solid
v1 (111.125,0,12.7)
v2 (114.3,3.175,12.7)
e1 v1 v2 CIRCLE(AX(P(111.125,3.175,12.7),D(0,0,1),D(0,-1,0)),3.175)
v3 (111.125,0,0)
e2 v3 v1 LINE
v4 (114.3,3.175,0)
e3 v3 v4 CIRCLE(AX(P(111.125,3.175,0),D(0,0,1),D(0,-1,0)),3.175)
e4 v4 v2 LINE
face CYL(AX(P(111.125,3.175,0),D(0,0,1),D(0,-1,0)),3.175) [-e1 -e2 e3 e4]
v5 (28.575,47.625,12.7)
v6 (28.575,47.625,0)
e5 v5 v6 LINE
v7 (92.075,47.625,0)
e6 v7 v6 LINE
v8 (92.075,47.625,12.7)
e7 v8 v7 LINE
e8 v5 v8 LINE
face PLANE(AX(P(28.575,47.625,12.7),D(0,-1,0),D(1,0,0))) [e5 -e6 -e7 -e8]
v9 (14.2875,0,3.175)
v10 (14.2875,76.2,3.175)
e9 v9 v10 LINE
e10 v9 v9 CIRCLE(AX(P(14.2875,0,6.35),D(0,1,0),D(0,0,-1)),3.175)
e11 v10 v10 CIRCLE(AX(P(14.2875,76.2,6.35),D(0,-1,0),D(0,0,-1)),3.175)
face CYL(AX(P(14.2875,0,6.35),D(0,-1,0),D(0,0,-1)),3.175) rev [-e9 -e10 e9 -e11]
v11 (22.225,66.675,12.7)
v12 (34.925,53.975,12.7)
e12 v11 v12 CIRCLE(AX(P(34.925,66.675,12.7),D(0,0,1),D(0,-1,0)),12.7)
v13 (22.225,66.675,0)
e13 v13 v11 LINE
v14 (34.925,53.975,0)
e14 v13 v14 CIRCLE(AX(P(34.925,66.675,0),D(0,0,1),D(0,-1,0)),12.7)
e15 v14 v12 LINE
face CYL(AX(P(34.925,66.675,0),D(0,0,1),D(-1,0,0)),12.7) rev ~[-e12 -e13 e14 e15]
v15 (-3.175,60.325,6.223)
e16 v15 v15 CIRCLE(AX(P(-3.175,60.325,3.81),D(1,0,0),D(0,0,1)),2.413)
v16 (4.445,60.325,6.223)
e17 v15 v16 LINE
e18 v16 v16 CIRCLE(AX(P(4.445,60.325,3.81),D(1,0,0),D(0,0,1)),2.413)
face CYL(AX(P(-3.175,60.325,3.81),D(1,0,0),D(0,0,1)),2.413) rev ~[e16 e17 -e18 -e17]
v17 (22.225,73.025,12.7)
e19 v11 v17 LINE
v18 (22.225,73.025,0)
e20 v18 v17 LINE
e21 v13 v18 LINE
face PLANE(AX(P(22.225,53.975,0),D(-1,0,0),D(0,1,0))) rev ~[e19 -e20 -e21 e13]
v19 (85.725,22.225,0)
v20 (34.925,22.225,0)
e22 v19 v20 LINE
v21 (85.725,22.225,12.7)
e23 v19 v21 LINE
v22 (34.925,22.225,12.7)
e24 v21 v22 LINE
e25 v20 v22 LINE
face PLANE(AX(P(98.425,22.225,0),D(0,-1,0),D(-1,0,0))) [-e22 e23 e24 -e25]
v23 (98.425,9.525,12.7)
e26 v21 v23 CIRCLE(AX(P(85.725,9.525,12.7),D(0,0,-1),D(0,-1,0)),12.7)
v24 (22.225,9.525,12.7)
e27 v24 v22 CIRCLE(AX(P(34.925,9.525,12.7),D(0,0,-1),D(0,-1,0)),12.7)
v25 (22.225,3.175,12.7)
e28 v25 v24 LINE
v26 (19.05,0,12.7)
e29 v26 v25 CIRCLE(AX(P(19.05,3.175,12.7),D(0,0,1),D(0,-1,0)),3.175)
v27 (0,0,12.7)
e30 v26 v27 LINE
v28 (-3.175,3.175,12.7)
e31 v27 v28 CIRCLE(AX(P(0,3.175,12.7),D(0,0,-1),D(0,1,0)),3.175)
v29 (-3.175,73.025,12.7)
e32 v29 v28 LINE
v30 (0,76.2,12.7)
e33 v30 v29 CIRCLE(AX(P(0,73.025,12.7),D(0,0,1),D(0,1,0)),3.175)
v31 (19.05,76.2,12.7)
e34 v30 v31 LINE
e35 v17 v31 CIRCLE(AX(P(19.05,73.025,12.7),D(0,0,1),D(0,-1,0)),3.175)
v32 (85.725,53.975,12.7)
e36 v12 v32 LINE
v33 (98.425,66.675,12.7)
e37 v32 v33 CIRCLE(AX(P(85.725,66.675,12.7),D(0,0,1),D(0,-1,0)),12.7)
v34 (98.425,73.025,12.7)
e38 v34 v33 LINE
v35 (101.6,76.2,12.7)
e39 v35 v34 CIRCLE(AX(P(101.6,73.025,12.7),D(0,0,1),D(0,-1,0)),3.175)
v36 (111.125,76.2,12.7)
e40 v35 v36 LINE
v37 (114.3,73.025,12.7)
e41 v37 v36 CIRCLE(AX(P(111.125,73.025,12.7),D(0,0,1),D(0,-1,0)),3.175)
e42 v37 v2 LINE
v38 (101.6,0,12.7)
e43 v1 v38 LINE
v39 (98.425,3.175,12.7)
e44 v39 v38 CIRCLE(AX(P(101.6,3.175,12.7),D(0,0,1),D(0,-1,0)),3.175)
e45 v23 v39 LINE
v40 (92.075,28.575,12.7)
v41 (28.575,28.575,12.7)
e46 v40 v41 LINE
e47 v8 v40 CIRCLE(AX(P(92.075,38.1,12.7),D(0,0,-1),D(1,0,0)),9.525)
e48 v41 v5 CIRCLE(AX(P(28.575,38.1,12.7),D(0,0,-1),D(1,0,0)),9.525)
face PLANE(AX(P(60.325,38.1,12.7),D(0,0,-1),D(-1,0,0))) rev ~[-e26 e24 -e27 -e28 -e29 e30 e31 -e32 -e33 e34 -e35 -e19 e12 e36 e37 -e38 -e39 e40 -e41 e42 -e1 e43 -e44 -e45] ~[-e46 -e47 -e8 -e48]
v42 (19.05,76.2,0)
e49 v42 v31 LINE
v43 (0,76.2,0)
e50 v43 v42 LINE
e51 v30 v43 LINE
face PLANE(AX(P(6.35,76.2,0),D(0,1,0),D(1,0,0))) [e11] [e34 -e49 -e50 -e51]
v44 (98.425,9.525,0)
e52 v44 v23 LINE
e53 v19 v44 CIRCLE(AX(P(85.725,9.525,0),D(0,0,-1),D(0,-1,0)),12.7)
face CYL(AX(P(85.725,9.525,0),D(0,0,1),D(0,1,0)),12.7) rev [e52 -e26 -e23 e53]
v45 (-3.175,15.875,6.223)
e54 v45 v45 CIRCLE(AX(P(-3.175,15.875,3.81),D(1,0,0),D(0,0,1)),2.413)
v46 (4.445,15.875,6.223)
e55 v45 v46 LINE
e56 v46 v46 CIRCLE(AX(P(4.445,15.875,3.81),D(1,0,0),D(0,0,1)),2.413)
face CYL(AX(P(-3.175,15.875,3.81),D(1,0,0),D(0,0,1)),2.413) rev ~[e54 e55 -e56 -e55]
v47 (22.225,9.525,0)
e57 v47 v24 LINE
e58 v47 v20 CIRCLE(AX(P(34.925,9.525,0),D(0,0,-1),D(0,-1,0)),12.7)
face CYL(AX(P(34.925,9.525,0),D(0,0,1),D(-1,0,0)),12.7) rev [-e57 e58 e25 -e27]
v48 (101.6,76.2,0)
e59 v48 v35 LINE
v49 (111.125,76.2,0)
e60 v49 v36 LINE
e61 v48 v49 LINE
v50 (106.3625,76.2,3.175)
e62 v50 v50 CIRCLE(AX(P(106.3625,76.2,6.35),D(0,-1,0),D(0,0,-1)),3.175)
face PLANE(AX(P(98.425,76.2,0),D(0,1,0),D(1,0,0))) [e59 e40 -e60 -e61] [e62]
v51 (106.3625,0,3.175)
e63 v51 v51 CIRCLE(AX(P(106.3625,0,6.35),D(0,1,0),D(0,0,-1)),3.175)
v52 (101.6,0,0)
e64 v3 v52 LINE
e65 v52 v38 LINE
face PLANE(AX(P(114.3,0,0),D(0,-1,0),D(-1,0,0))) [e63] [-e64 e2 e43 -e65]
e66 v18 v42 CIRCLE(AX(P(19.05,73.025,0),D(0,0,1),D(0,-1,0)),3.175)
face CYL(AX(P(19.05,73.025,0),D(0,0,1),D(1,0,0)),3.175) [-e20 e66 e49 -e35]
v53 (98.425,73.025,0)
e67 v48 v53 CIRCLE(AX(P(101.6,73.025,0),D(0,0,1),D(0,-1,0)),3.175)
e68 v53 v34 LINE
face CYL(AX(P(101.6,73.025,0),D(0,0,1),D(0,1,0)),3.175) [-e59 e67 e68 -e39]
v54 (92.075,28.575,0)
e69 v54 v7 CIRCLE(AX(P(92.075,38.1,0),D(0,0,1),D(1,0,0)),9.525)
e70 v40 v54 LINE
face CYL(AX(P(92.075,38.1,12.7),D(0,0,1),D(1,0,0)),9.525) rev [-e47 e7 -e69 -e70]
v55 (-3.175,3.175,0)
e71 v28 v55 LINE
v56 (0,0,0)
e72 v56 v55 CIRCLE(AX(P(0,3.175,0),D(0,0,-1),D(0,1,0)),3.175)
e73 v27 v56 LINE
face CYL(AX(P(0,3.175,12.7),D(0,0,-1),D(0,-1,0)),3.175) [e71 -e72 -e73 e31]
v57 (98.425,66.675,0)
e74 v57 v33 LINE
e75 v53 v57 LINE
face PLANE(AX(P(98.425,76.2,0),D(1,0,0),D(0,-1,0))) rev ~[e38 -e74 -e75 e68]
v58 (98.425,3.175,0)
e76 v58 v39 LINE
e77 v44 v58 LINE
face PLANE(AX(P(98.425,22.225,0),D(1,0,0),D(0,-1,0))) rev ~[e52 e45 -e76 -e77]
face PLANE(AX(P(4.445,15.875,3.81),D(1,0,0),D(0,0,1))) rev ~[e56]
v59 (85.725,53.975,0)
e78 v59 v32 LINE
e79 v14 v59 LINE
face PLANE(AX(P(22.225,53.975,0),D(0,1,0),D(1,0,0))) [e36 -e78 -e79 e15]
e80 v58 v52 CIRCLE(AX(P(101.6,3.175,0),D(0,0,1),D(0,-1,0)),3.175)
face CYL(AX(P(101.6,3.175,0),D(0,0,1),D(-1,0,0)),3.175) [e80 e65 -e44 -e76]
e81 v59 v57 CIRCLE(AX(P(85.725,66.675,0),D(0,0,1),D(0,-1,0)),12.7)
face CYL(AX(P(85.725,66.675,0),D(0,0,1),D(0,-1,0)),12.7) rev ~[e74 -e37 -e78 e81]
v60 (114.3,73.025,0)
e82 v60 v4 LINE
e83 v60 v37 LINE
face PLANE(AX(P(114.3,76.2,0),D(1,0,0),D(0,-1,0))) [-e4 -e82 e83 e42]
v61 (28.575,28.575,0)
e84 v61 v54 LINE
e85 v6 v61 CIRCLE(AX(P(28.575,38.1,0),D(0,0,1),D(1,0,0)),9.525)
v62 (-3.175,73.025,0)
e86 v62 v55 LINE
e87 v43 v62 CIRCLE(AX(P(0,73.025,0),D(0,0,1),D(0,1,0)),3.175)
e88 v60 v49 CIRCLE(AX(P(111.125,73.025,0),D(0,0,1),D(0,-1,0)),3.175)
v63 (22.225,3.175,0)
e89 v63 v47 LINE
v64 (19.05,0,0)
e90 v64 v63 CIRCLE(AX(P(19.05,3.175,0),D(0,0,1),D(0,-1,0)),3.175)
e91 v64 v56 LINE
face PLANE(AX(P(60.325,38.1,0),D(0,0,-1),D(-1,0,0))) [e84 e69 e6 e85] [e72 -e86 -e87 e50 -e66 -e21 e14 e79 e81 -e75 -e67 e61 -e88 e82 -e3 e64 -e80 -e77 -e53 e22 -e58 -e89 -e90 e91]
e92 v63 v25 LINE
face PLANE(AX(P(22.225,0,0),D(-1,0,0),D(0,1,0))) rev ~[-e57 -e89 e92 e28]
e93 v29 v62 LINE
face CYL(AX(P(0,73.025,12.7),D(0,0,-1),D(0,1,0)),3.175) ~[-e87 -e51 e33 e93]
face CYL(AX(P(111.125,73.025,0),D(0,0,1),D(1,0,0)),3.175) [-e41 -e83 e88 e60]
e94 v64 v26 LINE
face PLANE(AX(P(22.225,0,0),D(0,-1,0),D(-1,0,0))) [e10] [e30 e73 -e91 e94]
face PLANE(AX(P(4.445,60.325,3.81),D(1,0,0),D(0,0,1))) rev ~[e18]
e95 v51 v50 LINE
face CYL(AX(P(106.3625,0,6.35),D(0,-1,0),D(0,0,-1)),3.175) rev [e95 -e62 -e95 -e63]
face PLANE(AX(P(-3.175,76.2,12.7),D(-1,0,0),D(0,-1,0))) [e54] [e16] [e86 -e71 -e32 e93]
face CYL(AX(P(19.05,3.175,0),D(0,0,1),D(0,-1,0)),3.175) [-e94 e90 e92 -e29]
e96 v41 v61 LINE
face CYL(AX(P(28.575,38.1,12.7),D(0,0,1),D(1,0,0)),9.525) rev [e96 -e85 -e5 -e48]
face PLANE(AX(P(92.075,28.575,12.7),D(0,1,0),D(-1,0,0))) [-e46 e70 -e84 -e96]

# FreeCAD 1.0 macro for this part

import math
import FreeCAD as App
import Part
import Sketcher
from FreeCAD import Vector
Q = App.Units.Quantity


def edges_at(feature, points):
    """Names of the edges that pass closest to the given points."""
    edges = feature.Shape.Edges
    near = lambda p: min(range(len(edges)), key=lambda i: edges[i].distToShape(Part.Vertex(*p))[0])
    return sorted({f"Edge{near(p) + 1}" for p in points})

doc = App.newDocument("Part")
body = doc.addObject("PartDesign::Body", "Body")

# Sketch on XY plane
sketch1 = body.newObject("Sketcher::SketchObject", "Sketch")
sketch1.AttachmentSupport = (doc.getObject("XY_Plane"), [""])
sketch1.MapMode = "FlatFace"
sketch1.addGeometry([
    Part.LineSegment(Vector(6.35, 76.2, 0), Vector(6.35, 0, 0)),  # 0
    Part.LineSegment(Vector(6.35, 0, 0), Vector(22.225, 0, 0)),  # 1
    Part.LineSegment(Vector(22.225, 0, 0), Vector(22.225, 22.225, 0)),  # 2
    Part.LineSegment(Vector(22.225, 22.225, 0), Vector(98.425, 22.225, 0)),  # 3
    Part.LineSegment(Vector(98.425, 22.225, 0), Vector(98.425, 0, 0)),  # 4
    Part.LineSegment(Vector(98.425, 0, 0), Vector(114.3, 0, 0)),  # 5
    Part.LineSegment(Vector(114.3, 0, 0), Vector(114.3, 76.2, 0)),  # 6
    Part.LineSegment(Vector(114.3, 76.2, 0), Vector(98.425, 76.2, 0)),  # 7
    Part.LineSegment(Vector(98.425, 76.2, 0), Vector(98.425, 53.975, 0)),  # 8
    Part.LineSegment(Vector(98.425, 53.975, 0), Vector(22.225, 53.975, 0)),  # 9
    Part.LineSegment(Vector(22.225, 53.975, 0), Vector(22.225, 76.2, 0)),  # 10
    Part.LineSegment(Vector(22.225, 76.2, 0), Vector(6.35, 76.2, 0)),  # 11
], False)
sketch1.addConstraint([
    Sketcher.Constraint("Coincident", 0, 2, 1, 1),
    Sketcher.Constraint("Coincident", 1, 2, 2, 1),
    Sketcher.Constraint("Coincident", 2, 2, 3, 1),
    Sketcher.Constraint("Coincident", 3, 2, 4, 1),
    Sketcher.Constraint("Coincident", 4, 2, 5, 1),
    Sketcher.Constraint("Coincident", 5, 2, 6, 1),
    Sketcher.Constraint("Coincident", 6, 2, 7, 1),
    Sketcher.Constraint("Coincident", 7, 2, 8, 1),
    Sketcher.Constraint("Coincident", 8, 2, 9, 1),
    Sketcher.Constraint("Coincident", 9, 2, 10, 1),
    Sketcher.Constraint("Coincident", 10, 2, 11, 1),
    Sketcher.Constraint("Coincident", 11, 2, 0, 1),
    Sketcher.Constraint("Vertical", 0),
    Sketcher.Constraint("Horizontal", 1),
    Sketcher.Constraint("Vertical", 2),
    Sketcher.Constraint("Horizontal", 3),
    Sketcher.Constraint("Vertical", 4),
    Sketcher.Constraint("Horizontal", 5),
    Sketcher.Constraint("Vertical", 6),
    Sketcher.Constraint("Horizontal", 7),
    Sketcher.Constraint("Vertical", 8),
    Sketcher.Constraint("Horizontal", 9),
    Sketcher.Constraint("Vertical", 10),
    Sketcher.Constraint("Horizontal", 11),
    Sketcher.Constraint("PointOnObject", 0, 2, -1),
    Sketcher.Constraint("PointOnObject", 4, 2, -1),
    Sketcher.Constraint("Horizontal", 7, 2, 10, 2),
    Sketcher.Constraint("Vertical", 4, 2, 7, 2),
    Sketcher.Constraint("Vertical", 2, 2, 9, 2),
    Sketcher.Constraint("Equal", 1, 5),
    Sketcher.Constraint("Equal", 9, 0),
    Sketcher.Constraint("Equal", 4, 8),
    Sketcher.Constraint("DistanceX", 3, 1, 3, 2, Q("3 in")),
    Sketcher.Constraint("DistanceY", 2, 1, 2, 2, Q("0.875 in")),
    Sketcher.Constraint("DistanceX", -1, 1, 0, 2, Q("0.25 in")),
    Sketcher.Constraint("DistanceX", -1, 1, 1, 2, Q("0.875 in")),
])
pad1 = body.newObject("PartDesign::Pad", "Pad")
pad1.Profile = sketch1
pad1.Length = Q("0.5 in")

# Sketch on XZ plane
sketch2 = body.newObject("Sketcher::SketchObject", "Sketch001")
sketch2.AttachmentSupport = (doc.getObject("XZ_Plane"), [""])
sketch2.MapMode = "FlatFace"
sketch2.addGeometry(Part.Circle(Vector(14.2875, 6.35, 0), Vector(0, 0, 1), 3.175), False)
sketch2.addConstraint([
    Sketcher.Constraint("Diameter", 0, Q("0.25 in")),
    Sketcher.Constraint("DistanceY", -1, 1, 0, 3, Q("0.25 in")),
    Sketcher.Constraint("DistanceX", -1, 1, 0, 3, Q("0.5625 in")),
])
doc.recompute()
hole = body.newObject("PartDesign::Hole", "Hole")
hole.Profile = sketch2
hole.ThreadType = "None"
hole.Diameter = Q("0.25 in")
hole.DepthType = "ThroughAll"

# Sketch on XZ plane
sketch3 = body.newObject("Sketcher::SketchObject", "Sketch002")
sketch3.AttachmentSupport = (doc.getObject("XZ_Plane"), [""])
sketch3.MapMode = "FlatFace"
sketch3.addGeometry(Part.Circle(Vector(106.3625, 6.35, 0), Vector(0, 0, 1), 3.175), False)
sketch3.addConstraint([
    Sketcher.Constraint("Diameter", 0, Q("0.25 in")),
    Sketcher.Constraint("DistanceY", -1, 1, 0, 3, Q("0.25 in")),
    Sketcher.Constraint("DistanceX", -1, 1, 0, 3, Q("4.1875 in")),
])
doc.recompute()
hole2 = body.newObject("PartDesign::Hole", "Hole001")
hole2.Profile = sketch3
hole2.ThreadType = "None"
hole2.Diameter = Q("0.25 in")
hole2.DepthType = "ThroughAll"

# Sketch on XY plane
sketch4 = body.newObject("Sketcher::SketchObject", "Sketch003")
sketch4.AttachmentSupport = (doc.getObject("XY_Plane"), [""])
sketch4.MapMode = "FlatFace"
sketch4.AttachmentOffset = App.Placement(Vector(0, 0, 0.5 * 25.4), App.Rotation())
sketch4.addGeometry([
    Part.LineSegment(Vector(28.575, 28.575, 0), Vector(92.075, 28.575, 0)),
    Part.ArcOfCircle(Part.Circle(Vector(92.075, 38.1, 0), Vector(0, 0, 1), 9.525), math.radians(-90), math.radians(90)),
    Part.LineSegment(Vector(92.075, 47.625, 0), Vector(28.575, 47.625, 0)),
    Part.ArcOfCircle(Part.Circle(Vector(28.575, 38.1, 0), Vector(0, 0, 1), 9.525), math.radians(90), math.radians(270)),
], False)
sketch4.addConstraint([
    Sketcher.Constraint("Tangent", 0, 2, 1, 1),
    Sketcher.Constraint("Tangent", 1, 2, 2, 1),
    Sketcher.Constraint("Tangent", 2, 2, 3, 1),
    Sketcher.Constraint("Tangent", 3, 2, 0, 1),
    Sketcher.Constraint("Horizontal", 0),
    Sketcher.Constraint("Horizontal", 2),
    Sketcher.Constraint("DistanceX", 0, 1, 0, 2, Q("2.5 in")),
    Sketcher.Constraint("Radius", 1, Q("0.375 in")),
    Sketcher.Constraint("DistanceY", -1, 1, 1, 3, Q("1.5 in")),
    Sketcher.Constraint("DistanceX", -1, 1, 1, 3, Q("3.625 in")),
])
pocket1 = body.newObject("PartDesign::Pocket", "Pocket")
pocket1.Profile = sketch4
pocket1.Type = "ThroughAll"
doc.recompute()

fillet = body.newObject("PartDesign::Fillet", "Fillet")
fillet.Base = (pocket1, edges_at(pocket1, [
    (22.225, 22.225, 6.35),
    (22.225, 53.975, 6.35),
    (98.425, 53.975, 6.35),
    (98.425, 22.225, 6.35),
]))
fillet.Radius = Q("0.5 in")

# Sketch on XY plane
sketch5 = body.newObject("Sketcher::SketchObject", "Sketch004")
sketch5.AttachmentSupport = (doc.getObject("XY_Plane"), [""])
sketch5.MapMode = "FlatFace"
sketch5.AttachmentOffset = App.Placement(Vector(0, 0, 0.5 * 25.4), App.Rotation())
sketch5.addGeometry([
    Part.LineSegment(Vector(9.525, 76.2, 0), Vector(-3.175, 76.2, 0)),
    Part.LineSegment(Vector(-3.175, 76.2, 0), Vector(-3.175, 0, 0)),
    Part.LineSegment(Vector(-3.175, 0, 0), Vector(9.525, 0, 0)),
    Part.LineSegment(Vector(9.525, 0, 0), Vector(9.525, 76.2, 0)),
], False)
sketch5.addConstraint([
    Sketcher.Constraint("Coincident", 0, 2, 1, 1),
    Sketcher.Constraint("Coincident", 1, 2, 2, 1),
    Sketcher.Constraint("Coincident", 2, 2, 3, 1),
    Sketcher.Constraint("Coincident", 3, 2, 0, 1),
    Sketcher.Constraint("Horizontal", 0),
    Sketcher.Constraint("Vertical", 1),
    Sketcher.Constraint("Horizontal", 2),
    Sketcher.Constraint("Vertical", 3),
    Sketcher.Constraint("PointOnObject", 1, 2, -1),
    Sketcher.Constraint("DistanceY", 1, 2, 1, 1, Q("3 in")),
    Sketcher.Constraint("DistanceX", 0, 2, 0, 1, Q("0.5 in")),
    Sketcher.Constraint("DistanceX", 0, 2, -1, 1, Q("0.125 in")),
])
pad2 = body.newObject("PartDesign::Pad", "Pad001")
pad2.Profile = sketch5
pad2.Length = Q("0.5 in")
pad2.Reversed = True
doc.recompute()

fillet2 = body.newObject("PartDesign::Fillet", "Fillet001")
fillet2.Base = (pad2, edges_at(pad2, [
    (22.225, 0, 6.35),
    (22.225, 76.2, 6.35),
    (98.425, 76.2, 6.35),
    (114.3, 76.2, 6.35),
    (114.3, 0, 6.35),
    (98.425, 0, 6.35),
    (-3.175, 76.2, 6.35),
    (-3.175, 0, 6.35),
]))
fillet2.Radius = Q("0.125 in")

# Sketch on YZ plane
sketch6 = body.newObject("Sketcher::SketchObject", "Sketch005")
sketch6.AttachmentSupport = (doc.getObject("YZ_Plane"), [""])
sketch6.MapMode = "FlatFace"
sketch6.AttachmentOffset = App.Placement(Vector(0, 0, -0.125 * 25.4), App.Rotation())
sketch6.addGeometry(Part.Circle(Vector(15.875, 3.81, 0), Vector(0, 0, 1), 2.413), False)
sketch6.addConstraint([
    Sketcher.Constraint("Diameter", 0, Q("0.19 in")),
    Sketcher.Constraint("DistanceY", -1, 1, 0, 3, Q("0.15 in")),
    Sketcher.Constraint("DistanceX", -1, 1, 0, 3, Q("0.625 in")),
])
doc.recompute()
hole3 = body.newObject("PartDesign::Hole", "Hole002")
hole3.Profile = sketch6
hole3.ThreadType = "None"
hole3.Diameter = Q("0.19 in")
hole3.DepthType = "Dimension"
hole3.Depth = Q("0.3 in")
hole3.DrillPoint = "Flat"
hole3.Reversed = True

# Sketch on YZ plane
sketch7 = body.newObject("Sketcher::SketchObject", "Sketch006")
sketch7.AttachmentSupport = (doc.getObject("YZ_Plane"), [""])
sketch7.MapMode = "FlatFace"
sketch7.AttachmentOffset = App.Placement(Vector(0, 0, -0.125 * 25.4), App.Rotation())
sketch7.addGeometry(Part.Circle(Vector(60.325, 3.81, 0), Vector(0, 0, 1), 2.413), False)
sketch7.addConstraint([
    Sketcher.Constraint("Diameter", 0, Q("0.19 in")),
    Sketcher.Constraint("DistanceY", -1, 1, 0, 3, Q("0.15 in")),
    Sketcher.Constraint("DistanceX", -1, 1, 0, 3, Q("2.375 in")),
])
doc.recompute()
hole4 = body.newObject("PartDesign::Hole", "Hole003")
hole4.Profile = sketch7
hole4.ThreadType = "None"
hole4.Diameter = Q("0.19 in")
hole4.DepthType = "Dimension"
hole4.Depth = Q("0.3 in")
hole4.DrillPoint = "Flat"
hole4.Reversed = True

doc.recompute()
